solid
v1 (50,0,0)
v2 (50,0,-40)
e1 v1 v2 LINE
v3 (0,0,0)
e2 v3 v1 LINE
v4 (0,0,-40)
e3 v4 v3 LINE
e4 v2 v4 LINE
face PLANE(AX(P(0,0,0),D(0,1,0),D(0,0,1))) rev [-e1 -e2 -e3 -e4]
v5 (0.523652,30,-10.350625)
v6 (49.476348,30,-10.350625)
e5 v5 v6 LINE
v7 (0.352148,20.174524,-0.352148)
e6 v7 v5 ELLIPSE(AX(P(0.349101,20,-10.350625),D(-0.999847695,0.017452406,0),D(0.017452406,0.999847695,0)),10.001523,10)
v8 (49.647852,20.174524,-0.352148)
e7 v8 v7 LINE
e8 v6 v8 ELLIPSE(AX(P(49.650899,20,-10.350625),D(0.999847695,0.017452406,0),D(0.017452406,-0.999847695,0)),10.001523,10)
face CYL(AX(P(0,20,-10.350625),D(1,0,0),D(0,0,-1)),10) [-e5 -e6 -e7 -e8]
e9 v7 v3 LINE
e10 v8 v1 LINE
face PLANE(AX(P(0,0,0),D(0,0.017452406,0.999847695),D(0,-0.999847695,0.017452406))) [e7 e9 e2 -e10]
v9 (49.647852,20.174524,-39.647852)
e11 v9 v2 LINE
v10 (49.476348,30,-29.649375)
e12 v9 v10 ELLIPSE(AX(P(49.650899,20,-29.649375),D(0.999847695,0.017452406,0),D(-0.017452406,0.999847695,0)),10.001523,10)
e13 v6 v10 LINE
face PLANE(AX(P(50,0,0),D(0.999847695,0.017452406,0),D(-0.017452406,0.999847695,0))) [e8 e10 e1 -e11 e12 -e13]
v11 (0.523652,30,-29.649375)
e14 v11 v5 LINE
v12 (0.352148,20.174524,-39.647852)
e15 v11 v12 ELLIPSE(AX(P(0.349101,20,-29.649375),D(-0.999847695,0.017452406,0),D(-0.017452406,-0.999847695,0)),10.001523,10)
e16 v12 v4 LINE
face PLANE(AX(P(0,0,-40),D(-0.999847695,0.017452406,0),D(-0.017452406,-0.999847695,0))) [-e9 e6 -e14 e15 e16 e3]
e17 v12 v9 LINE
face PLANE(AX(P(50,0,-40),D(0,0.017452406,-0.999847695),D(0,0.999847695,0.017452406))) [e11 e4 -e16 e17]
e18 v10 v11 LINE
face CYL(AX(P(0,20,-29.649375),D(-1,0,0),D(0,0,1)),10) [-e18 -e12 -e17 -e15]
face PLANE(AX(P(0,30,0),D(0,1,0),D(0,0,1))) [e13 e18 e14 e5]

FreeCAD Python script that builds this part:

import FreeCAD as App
import Part
import Sketcher
from FreeCAD import Vector


def edges_at(feature, points):
    """Names of the edges that pass closest to the given points."""
    edges = feature.Shape.Edges
    near = lambda p: min(range(len(edges)), key=lambda i: edges[i].distToShape(Part.Vertex(*p))[0])
    return sorted({f"Edge{near(p) + 1}" for p in points})

doc = App.newDocument("Part")
body = doc.addObject("PartDesign::Body", "Body")

# Sketch on XZ plane
sketch1 = body.newObject("Sketcher::SketchObject", "Sketch")
sketch1.AttachmentSupport = (doc.getObject("XZ_Plane"), [""])
sketch1.MapMode = "FlatFace"
sketch1.addGeometry(Part.LineSegment(Vector(0, -40, 0), Vector(0, 0, 0)), False)
sketch1.addGeometry(Part.LineSegment(Vector(0, 0, 0), Vector(50, 0, 0)), False)
sketch1.addGeometry(Part.LineSegment(Vector(50, 0, 0), Vector(50, -40, 0)), False)
sketch1.addGeometry(Part.LineSegment(Vector(50, -40, 0), Vector(0, -40, 0)), False)
sketch1.addConstraint(Sketcher.Constraint("Coincident", 0, 2, 1, 1))
sketch1.addConstraint(Sketcher.Constraint("Coincident", 1, 2, 2, 1))
sketch1.addConstraint(Sketcher.Constraint("Coincident", 2, 2, 3, 1))
sketch1.addConstraint(Sketcher.Constraint("Coincident", 3, 2, 0, 1))
sketch1.addConstraint(Sketcher.Constraint("Vertical", 0))
sketch1.addConstraint(Sketcher.Constraint("Horizontal", 1))
sketch1.addConstraint(Sketcher.Constraint("Vertical", 2))
sketch1.addConstraint(Sketcher.Constraint("Horizontal", 3))
sketch1.addConstraint(Sketcher.Constraint("Coincident", 0, 2, -1, 1))
sketch1.addConstraint(Sketcher.Constraint("DistanceX", 1, 1, 1, 2, 50.0))
sketch1.addConstraint(Sketcher.Constraint("DistanceY", 0, 1, 0, 2, 40.0))
pad1 = body.newObject("PartDesign::Pad", "Pad")
pad1.Profile = sketch1
pad1.Length = 30
pad1.Reversed = True
pad1.TaperAngle = -1
doc.recompute()

fillet = body.newObject("PartDesign::Fillet", "Fillet")
fillet.Base = (pad1, edges_at(pad1, [(25, 30, -39.476), (25, 30, -0.524)]))
fillet.Radius = 10

doc.recompute()
